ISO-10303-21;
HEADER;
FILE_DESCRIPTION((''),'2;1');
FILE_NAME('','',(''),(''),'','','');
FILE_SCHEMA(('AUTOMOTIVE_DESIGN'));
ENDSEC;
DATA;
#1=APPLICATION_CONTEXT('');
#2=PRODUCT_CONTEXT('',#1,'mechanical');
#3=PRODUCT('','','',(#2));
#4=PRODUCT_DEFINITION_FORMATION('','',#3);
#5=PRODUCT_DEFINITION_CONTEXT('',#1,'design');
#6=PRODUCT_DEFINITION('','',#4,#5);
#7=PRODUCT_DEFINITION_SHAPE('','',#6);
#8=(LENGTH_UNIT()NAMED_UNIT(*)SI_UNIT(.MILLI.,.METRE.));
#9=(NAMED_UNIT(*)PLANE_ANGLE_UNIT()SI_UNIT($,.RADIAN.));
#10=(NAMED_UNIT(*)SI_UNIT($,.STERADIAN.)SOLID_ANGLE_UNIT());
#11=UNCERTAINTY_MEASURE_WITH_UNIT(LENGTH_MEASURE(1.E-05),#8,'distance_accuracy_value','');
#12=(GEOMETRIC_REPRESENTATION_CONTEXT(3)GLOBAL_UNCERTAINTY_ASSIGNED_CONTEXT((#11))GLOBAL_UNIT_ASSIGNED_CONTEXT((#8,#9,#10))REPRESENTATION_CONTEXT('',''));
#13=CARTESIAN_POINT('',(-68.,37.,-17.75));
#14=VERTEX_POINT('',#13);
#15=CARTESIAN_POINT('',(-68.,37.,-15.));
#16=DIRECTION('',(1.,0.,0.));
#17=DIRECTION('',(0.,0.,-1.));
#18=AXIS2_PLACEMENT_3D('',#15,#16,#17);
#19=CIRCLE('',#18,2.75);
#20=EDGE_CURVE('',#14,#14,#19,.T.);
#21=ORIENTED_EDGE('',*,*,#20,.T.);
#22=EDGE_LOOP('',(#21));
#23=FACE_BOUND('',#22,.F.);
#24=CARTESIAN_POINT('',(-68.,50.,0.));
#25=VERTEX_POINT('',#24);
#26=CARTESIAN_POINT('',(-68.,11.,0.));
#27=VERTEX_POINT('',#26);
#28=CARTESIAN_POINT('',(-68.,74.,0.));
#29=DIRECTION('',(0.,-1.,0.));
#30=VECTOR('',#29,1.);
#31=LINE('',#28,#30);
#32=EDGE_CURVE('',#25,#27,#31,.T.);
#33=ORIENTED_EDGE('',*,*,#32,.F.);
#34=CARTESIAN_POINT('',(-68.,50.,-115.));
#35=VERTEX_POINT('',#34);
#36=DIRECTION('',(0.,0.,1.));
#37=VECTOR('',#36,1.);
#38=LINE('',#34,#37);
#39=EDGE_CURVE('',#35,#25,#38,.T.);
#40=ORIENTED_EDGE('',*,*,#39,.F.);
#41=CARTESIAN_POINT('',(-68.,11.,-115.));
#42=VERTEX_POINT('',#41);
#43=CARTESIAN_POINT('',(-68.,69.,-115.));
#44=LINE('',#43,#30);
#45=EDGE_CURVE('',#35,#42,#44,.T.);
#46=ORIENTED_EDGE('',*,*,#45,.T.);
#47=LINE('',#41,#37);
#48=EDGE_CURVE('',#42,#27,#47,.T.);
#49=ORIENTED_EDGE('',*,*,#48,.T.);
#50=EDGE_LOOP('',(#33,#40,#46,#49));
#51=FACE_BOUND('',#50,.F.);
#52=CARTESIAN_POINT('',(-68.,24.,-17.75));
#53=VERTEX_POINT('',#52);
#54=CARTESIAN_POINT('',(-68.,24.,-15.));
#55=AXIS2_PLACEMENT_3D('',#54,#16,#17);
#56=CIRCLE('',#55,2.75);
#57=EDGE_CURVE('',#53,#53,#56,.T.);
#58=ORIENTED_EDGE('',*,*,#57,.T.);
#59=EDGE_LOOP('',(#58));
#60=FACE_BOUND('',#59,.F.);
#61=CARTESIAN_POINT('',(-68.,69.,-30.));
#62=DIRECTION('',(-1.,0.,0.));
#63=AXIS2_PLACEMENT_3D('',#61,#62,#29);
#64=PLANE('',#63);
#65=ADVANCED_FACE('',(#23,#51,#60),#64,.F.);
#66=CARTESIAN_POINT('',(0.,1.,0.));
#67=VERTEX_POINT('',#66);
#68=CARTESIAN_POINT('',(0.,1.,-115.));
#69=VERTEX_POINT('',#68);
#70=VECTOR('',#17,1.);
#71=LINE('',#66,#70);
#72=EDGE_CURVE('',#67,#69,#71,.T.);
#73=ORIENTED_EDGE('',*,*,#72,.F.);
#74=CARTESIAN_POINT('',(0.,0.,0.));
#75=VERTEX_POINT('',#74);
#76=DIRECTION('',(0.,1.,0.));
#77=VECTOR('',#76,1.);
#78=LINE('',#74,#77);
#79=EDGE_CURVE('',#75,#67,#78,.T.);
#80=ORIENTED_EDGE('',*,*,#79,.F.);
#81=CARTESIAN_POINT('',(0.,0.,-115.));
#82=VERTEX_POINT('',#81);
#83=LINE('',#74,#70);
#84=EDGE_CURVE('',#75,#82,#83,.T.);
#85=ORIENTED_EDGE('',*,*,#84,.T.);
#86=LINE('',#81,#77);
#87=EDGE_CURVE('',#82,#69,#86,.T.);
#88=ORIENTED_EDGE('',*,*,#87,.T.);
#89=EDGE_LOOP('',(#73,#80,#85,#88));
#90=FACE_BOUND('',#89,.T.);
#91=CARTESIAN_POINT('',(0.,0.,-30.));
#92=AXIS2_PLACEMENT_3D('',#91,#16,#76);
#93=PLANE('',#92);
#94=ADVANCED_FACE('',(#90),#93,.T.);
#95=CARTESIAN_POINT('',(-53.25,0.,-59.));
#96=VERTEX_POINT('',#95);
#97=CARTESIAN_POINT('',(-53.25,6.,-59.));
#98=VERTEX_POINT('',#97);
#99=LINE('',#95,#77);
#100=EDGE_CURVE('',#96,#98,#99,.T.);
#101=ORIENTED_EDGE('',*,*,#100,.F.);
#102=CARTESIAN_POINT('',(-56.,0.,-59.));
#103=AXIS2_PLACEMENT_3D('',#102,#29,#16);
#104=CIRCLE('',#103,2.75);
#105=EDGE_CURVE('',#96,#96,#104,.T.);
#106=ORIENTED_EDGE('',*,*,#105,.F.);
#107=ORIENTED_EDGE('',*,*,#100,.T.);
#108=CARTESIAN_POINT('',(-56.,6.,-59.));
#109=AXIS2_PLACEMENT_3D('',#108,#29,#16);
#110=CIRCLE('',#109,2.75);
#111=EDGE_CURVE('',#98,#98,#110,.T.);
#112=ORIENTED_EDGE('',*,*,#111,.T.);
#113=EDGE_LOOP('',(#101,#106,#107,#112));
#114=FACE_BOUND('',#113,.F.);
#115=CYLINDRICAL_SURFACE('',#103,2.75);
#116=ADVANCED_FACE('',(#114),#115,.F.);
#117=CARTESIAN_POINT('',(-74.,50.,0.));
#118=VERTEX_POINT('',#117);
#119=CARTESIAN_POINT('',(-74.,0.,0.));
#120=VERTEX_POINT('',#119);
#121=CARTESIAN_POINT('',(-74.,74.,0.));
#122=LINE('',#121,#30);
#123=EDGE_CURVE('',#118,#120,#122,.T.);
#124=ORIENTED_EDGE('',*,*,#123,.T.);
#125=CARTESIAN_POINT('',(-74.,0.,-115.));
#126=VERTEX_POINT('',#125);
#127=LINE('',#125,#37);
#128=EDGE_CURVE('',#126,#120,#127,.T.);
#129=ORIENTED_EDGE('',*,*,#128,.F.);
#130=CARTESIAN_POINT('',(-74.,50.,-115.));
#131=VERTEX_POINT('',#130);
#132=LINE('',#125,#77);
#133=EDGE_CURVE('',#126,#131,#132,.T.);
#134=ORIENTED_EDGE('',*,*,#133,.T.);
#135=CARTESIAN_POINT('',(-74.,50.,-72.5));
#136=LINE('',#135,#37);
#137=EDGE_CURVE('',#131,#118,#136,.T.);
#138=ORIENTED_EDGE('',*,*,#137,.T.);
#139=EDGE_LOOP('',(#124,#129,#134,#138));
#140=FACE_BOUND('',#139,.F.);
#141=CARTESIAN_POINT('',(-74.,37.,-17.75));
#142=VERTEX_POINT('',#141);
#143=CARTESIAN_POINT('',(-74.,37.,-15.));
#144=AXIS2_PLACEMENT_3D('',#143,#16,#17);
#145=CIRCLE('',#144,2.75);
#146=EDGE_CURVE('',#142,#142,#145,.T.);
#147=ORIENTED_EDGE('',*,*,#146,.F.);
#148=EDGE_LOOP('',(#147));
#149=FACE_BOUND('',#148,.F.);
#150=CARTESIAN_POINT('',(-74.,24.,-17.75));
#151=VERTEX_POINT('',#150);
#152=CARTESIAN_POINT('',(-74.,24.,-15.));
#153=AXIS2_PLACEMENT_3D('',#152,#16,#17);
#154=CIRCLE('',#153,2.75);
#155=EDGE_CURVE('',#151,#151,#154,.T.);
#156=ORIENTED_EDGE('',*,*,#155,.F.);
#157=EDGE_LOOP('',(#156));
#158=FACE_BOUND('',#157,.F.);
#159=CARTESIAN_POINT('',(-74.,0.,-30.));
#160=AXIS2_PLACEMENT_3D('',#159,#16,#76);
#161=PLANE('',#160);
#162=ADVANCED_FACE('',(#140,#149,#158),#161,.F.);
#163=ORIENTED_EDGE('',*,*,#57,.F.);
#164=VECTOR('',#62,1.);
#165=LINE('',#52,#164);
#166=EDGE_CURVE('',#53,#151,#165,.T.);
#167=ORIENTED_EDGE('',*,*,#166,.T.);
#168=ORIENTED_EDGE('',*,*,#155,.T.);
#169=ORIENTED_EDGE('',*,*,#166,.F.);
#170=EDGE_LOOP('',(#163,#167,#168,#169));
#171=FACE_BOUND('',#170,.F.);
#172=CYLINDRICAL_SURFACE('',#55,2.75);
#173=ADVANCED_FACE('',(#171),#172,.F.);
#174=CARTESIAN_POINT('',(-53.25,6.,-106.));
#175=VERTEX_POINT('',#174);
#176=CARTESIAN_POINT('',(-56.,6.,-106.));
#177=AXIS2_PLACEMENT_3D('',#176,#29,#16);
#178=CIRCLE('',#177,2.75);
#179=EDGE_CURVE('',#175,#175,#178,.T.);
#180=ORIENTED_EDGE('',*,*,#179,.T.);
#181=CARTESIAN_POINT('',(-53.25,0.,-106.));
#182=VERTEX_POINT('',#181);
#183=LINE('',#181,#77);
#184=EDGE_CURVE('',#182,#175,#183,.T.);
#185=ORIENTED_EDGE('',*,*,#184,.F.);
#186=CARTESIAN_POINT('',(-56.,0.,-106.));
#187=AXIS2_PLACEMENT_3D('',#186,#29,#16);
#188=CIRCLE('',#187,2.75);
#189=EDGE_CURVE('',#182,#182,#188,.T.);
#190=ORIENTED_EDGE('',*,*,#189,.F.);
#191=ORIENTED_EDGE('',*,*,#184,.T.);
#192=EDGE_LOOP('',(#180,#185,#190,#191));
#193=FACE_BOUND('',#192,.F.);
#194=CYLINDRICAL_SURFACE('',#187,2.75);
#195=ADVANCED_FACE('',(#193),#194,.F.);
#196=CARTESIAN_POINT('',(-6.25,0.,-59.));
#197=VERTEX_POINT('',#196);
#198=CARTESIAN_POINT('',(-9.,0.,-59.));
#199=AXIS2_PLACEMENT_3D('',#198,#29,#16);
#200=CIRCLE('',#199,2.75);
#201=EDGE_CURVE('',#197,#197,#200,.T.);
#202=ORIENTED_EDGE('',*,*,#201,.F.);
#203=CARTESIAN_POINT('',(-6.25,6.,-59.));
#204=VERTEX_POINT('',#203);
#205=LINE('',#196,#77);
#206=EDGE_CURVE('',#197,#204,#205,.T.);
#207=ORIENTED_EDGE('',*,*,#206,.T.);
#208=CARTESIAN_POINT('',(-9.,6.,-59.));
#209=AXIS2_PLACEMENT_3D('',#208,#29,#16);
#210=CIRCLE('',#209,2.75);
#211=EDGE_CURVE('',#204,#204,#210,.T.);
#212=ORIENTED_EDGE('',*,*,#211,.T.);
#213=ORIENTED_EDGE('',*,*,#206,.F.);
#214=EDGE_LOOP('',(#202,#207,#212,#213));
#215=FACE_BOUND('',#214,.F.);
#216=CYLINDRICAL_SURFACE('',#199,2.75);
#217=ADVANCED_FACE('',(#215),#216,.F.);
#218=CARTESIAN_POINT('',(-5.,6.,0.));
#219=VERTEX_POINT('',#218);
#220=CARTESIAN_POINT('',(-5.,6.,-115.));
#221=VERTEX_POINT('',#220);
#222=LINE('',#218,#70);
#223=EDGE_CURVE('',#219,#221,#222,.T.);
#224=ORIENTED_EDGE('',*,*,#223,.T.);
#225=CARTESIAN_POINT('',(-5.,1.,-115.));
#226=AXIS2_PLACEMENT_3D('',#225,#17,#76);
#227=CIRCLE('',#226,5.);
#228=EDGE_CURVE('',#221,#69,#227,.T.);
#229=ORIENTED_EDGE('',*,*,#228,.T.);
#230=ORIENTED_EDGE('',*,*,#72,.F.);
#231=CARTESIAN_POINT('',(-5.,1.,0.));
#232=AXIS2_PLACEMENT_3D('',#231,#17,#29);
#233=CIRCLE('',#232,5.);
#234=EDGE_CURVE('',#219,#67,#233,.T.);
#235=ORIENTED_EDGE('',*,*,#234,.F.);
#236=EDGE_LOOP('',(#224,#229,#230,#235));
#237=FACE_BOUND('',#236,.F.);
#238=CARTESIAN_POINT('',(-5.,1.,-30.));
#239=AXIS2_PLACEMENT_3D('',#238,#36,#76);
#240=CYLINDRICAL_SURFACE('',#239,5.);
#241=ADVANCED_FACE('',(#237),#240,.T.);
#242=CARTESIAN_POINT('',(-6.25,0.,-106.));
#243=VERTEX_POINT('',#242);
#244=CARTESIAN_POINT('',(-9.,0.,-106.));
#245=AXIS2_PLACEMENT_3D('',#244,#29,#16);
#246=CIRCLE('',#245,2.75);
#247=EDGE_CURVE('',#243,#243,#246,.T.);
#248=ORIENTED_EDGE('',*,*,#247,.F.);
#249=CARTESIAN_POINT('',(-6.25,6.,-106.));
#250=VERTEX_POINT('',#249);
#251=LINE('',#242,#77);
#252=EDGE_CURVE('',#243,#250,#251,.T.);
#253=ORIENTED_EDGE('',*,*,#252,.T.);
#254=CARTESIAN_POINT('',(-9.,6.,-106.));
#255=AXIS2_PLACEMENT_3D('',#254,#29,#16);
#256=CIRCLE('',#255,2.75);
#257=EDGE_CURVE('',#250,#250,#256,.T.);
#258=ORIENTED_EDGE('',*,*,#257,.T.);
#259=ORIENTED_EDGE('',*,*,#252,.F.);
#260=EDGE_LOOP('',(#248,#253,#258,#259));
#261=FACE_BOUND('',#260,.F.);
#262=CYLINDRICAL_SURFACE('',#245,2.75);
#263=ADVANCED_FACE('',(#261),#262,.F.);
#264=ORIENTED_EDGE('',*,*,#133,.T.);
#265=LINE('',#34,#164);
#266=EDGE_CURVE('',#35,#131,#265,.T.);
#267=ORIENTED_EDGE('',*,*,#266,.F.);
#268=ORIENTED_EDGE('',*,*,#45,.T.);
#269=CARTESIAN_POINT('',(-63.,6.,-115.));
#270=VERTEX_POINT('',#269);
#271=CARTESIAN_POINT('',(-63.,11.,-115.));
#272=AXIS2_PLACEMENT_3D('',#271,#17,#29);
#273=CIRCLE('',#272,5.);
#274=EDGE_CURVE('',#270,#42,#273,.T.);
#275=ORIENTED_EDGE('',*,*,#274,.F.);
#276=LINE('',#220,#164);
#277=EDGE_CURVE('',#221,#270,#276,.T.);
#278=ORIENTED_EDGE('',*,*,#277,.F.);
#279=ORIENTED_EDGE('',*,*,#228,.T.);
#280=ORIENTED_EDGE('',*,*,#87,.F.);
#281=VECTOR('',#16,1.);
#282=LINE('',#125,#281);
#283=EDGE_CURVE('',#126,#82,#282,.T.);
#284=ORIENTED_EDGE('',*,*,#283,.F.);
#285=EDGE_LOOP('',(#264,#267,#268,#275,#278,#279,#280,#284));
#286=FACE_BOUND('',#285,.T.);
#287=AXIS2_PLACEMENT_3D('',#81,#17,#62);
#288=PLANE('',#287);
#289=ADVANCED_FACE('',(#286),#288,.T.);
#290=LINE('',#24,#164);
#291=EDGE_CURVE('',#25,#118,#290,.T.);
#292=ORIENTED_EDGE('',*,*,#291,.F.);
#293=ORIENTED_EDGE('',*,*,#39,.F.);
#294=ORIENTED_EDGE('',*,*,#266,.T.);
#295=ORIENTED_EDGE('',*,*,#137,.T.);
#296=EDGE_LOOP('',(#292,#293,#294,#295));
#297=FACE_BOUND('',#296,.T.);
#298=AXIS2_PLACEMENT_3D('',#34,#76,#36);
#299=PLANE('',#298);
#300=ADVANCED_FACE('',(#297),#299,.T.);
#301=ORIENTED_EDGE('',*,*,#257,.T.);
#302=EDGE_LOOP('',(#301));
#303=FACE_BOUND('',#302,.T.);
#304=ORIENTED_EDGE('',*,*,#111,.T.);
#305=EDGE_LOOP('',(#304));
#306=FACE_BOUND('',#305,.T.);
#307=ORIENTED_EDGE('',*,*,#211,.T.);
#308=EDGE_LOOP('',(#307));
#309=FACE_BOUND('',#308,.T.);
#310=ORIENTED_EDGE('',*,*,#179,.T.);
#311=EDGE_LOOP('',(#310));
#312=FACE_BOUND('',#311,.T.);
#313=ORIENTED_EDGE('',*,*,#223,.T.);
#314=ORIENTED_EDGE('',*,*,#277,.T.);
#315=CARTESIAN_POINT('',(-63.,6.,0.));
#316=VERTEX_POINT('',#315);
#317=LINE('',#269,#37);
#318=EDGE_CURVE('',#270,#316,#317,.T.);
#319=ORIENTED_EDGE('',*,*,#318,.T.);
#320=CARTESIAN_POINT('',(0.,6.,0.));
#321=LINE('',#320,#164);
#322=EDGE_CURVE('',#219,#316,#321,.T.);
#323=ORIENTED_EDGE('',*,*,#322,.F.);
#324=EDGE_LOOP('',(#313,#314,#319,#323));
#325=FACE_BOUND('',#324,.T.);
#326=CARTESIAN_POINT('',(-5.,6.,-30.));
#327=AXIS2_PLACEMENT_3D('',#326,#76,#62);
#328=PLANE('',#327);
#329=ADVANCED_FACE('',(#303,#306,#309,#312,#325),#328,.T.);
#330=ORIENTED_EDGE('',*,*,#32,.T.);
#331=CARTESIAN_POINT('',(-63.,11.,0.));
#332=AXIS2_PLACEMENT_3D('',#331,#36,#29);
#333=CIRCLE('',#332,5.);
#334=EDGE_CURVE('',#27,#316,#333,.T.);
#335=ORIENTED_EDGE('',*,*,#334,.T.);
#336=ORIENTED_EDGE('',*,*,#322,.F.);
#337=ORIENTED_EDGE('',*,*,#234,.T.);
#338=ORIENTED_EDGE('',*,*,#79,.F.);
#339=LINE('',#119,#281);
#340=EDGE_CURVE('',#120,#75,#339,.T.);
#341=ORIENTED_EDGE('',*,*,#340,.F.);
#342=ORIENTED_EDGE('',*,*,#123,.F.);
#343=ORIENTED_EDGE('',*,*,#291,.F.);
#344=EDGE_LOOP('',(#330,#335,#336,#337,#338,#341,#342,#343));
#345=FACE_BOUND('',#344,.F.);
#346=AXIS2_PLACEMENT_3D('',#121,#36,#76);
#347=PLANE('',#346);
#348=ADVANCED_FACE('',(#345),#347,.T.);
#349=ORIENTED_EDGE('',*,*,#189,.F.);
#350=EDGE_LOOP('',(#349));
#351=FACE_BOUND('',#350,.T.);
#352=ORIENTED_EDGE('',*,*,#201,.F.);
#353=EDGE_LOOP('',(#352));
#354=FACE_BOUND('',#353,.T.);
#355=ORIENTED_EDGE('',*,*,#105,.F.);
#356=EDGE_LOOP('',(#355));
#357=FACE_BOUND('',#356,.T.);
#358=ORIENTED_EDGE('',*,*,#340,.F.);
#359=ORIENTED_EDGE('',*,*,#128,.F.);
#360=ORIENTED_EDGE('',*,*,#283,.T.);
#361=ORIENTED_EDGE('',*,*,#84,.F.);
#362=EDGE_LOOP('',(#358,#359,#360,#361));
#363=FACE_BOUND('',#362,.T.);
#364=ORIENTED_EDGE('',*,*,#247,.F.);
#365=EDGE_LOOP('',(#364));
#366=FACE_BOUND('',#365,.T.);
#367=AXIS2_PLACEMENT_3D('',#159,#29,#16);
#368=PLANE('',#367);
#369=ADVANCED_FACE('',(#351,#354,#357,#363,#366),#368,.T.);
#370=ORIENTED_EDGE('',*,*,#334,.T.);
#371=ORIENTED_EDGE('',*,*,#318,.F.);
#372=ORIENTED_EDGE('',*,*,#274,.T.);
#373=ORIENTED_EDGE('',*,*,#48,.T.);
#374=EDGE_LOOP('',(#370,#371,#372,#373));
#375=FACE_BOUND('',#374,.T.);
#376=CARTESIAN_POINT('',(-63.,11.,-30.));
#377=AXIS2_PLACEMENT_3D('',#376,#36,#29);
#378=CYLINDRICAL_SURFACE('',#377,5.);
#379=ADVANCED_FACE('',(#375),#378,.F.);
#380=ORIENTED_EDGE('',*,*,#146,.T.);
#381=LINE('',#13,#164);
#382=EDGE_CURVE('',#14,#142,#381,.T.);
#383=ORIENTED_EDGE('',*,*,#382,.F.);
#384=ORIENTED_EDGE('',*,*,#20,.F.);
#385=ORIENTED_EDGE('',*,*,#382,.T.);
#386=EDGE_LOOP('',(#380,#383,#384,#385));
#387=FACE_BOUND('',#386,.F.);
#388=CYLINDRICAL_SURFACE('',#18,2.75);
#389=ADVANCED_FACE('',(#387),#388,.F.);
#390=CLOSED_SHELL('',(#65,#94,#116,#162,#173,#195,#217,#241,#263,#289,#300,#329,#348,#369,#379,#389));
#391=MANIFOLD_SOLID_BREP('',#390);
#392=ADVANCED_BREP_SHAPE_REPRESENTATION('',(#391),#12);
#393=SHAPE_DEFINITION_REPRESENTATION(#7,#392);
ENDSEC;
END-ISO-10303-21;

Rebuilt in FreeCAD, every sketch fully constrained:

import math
import FreeCAD as App
import Part
import Sketcher

V = App.Vector


def edges_at(feature, points):
    """Names of the edges that pass closest to the given points."""
    edges = feature.Shape.Edges
    near = lambda p: min(range(len(edges)), key=lambda i: edges[i].distToShape(Part.Vertex(*p))[0])
    return sorted({f"Edge{near(p) + 1}" for p in points})

doc = App.newDocument("Part")
body = doc.addObject("PartDesign::Body", "Body")

# Sketch on XZ plane
sketch1 = body.newObject("Sketcher::SketchObject", "Sketch")
sketch1.AttachmentSupport = (doc.getObject("XZ_Plane"), [""])
sketch1.MapMode = "FlatFace"
sketch1.addGeometry([
    Part.LineSegment(V(-74, 0, 0), V(0, 0, 0)),
    Part.LineSegment(V(0, 0, 0), V(0, -30, 0)),
    Part.LineSegment(V(0, -30, 0), V(-74, -30, 0)),
    Part.LineSegment(V(-74, -30, 0), V(-74, 0, 0)),
], False)
sketch1.addConstraint([
    Sketcher.Constraint("Coincident", 0, 2, 1, 1),
    Sketcher.Constraint("Coincident", 1, 2, 2, 1),
    Sketcher.Constraint("Coincident", 2, 2, 3, 1),
    Sketcher.Constraint("Coincident", 3, 2, 0, 1),
    Sketcher.Constraint("Horizontal", 0),
    Sketcher.Constraint("Vertical", 1),
    Sketcher.Constraint("Horizontal", 2),
    Sketcher.Constraint("Vertical", 3),
    Sketcher.Constraint("Coincident", 0, 2, -1, 1),
    Sketcher.Constraint("DistanceX", 0, 1, 0, 2, 74.0),
    Sketcher.Constraint("DistanceY", 1, 2, 1, 1, 30.0),
])
pad1 = body.newObject("PartDesign::Pad", "Pad")
pad1.Profile = sketch1
pad1.Length = 6
pad1.Reversed = True
doc.recompute()

fillet = body.newObject("PartDesign::Fillet", "Fillet")
fillet.Base = (pad1, edges_at(pad1, [(-74, 0, -15)]))
fillet.Radius = 5
doc.recompute()

fillet2 = body.newObject("PartDesign::Fillet", "Fillet001")
fillet2.Base = (fillet, edges_at(fillet, [(0, 6, -15)]))
fillet2.Radius = 5
doc.recompute()

datumplane = body.newObject("PartDesign::Plane", "DatumPlane")
datumplane.Placement = App.Placement(V(-37, 37, 0), App.Rotation(V(0.707106781, 0.707106781, 0), V(0, 0, -1), V(-0.707106781, 0.707106781, 0), "ZXY"))
mirrored = body.newObject("PartDesign::Mirrored", "Mirrored")
mirrored.Originals = [pad1, fillet2]
mirrored.MirrorPlane = (datumplane, [""])
body.Tip = mirrored
doc.recompute()

fillet3 = body.newObject("PartDesign::Fillet", "Fillet002")
fillet3.Base = (mirrored, edges_at(mirrored, [(-68, 6, -15)]))
fillet3.Radius = 5

# Sketch on XY plane
sketch2 = body.newObject("Sketcher::SketchObject", "Sketch001")
sketch2.AttachmentSupport = (doc.getObject("XY_Plane"), [""])
sketch2.MapMode = "FlatFace"
sketch2.AttachmentOffset = App.Placement(V(0, 0, -30), App.Rotation())
sketch2.addGeometry([
    Part.LineSegment(V(-63, 6, 0), V(-5, 6, 0)),  # 0
    Part.ArcOfCircle(Part.Circle(V(-5, 1, 0), V(0, 0, 1), 5), math.radians(0), math.radians(90)),  # 1
    Part.LineSegment(V(0, 1, 0), V(0, 0, 0)),  # 2
    Part.LineSegment(V(0, 0, 0), V(-74, 0, 0)),  # 3
    Part.LineSegment(V(-74, 0, 0), V(-74, 74, 0)),  # 4
    Part.LineSegment(V(-74, 74, 0), V(-73, 74, 0)),  # 5
    Part.ArcOfCircle(Part.Circle(V(-73, 69, 0), V(0, 0, 1), 5), math.radians(0), math.radians(90)),  # 6
    Part.LineSegment(V(-68, 69, 0), V(-68, 11, 0)),  # 7
    Part.ArcOfCircle(Part.Circle(V(-63, 11, 0), V(0, 0, 1), 5), math.radians(180), math.radians(270)),  # 8
], False)
sketch2.addConstraint([
    Sketcher.Constraint("Tangent", 0, 2, 1, 2),
    Sketcher.Constraint("Tangent", 1, 1, 2, 1),
    Sketcher.Constraint("Coincident", 2, 2, 3, 1),
    Sketcher.Constraint("Coincident", 3, 2, 4, 1),
    Sketcher.Constraint("Coincident", 4, 2, 5, 1),
    Sketcher.Constraint("Tangent", 5, 2, 6, 2),
    Sketcher.Constraint("Tangent", 6, 1, 7, 1),
    Sketcher.Constraint("Tangent", 7, 2, 8, 1),
    Sketcher.Constraint("Tangent", 8, 2, 0, 1),
    Sketcher.Constraint("Horizontal", 0),
    Sketcher.Constraint("Vertical", 2),
    Sketcher.Constraint("Horizontal", 3),
    Sketcher.Constraint("Vertical", 4),
    Sketcher.Constraint("Horizontal", 5),
    Sketcher.Constraint("Vertical", 7),
    Sketcher.Constraint("Coincident", 2, 2, -1, 1),
    Sketcher.Constraint("Equal", 1, 6),
    Sketcher.Constraint("Equal", 6, 8),
    Sketcher.Constraint("Equal", 5, 2),
    Sketcher.Constraint("Equal", 3, 4),
    Sketcher.Constraint("Radius", 1, 5.0),
    Sketcher.Constraint("DistanceX", 0, 1, 0, 2, 58.0),
    Sketcher.Constraint("DistanceX", 3, 2, 3, 1, 74.0),
])
pad2 = body.newObject("PartDesign::Pad", "Pad001")
pad2.Profile = sketch2
pad2.Length = 85
pad2.Reversed = True

# Sketch on YZ plane
sketch3 = body.newObject("Sketcher::SketchObject", "Sketch002")
sketch3.AttachmentSupport = (doc.getObject("YZ_Plane"), [""])
sketch3.MapMode = "FlatFace"
sketch3.AttachmentOffset = App.Placement(V(0, 0, -68), App.Rotation())
sketch3.addGeometry([
    Part.LineSegment(V(50, -115, 0), V(74, -115, 0)),
    Part.LineSegment(V(74, -115, 0), V(74, 0, 0)),
    Part.LineSegment(V(74, 0, 0), V(50, 0, 0)),
    Part.LineSegment(V(50, 0, 0), V(50, -115, 0)),
], False)
sketch3.addConstraint([
    Sketcher.Constraint("Coincident", 0, 2, 1, 1),
    Sketcher.Constraint("Coincident", 1, 2, 2, 1),
    Sketcher.Constraint("Coincident", 2, 2, 3, 1),
    Sketcher.Constraint("Coincident", 3, 2, 0, 1),
    Sketcher.Constraint("Horizontal", 0),
    Sketcher.Constraint("Vertical", 1),
    Sketcher.Constraint("Horizontal", 2),
    Sketcher.Constraint("Vertical", 3),
    Sketcher.Constraint("PointOnObject", 1, 2, -1),
    Sketcher.Constraint("DistanceX", 0, 1, 0, 2, 24.0),
    Sketcher.Constraint("DistanceX", -1, 1, 0, 2, 74.0),
    Sketcher.Constraint("DistanceY", 1, 1, 1, 2, 115.0),
])
pocket1 = body.newObject("PartDesign::Pocket", "Pocket")
pocket1.Profile = sketch3
pocket1.Length = 10

# Sketch on YZ plane
sketch4 = body.newObject("Sketcher::SketchObject", "Sketch003")
sketch4.AttachmentSupport = (doc.getObject("YZ_Plane"), [""])
sketch4.MapMode = "FlatFace"
sketch4.AttachmentOffset = App.Placement(V(0, 0, -68), App.Rotation())
sketch4.addGeometry([
    Part.Circle(V(24, -15, 0), V(0, 0, 1), 2.8),
    Part.Circle(V(37, -15, 0), V(0, 0, 1), 2.8),
], False)
sketch4.addConstraint([
    Sketcher.Constraint("Equal", 0, 1),
    Sketcher.Constraint("Horizontal", 0, 3, 1, 3),
    Sketcher.Constraint("Diameter", 0, 5.5),
    Sketcher.Constraint("DistanceY", 0, 3, -1, 1, 15.0),
    Sketcher.Constraint("DistanceX", 0, 3, 1, 3, 13.0),
    Sketcher.Constraint("DistanceX", -1, 1, 0, 3, 24.0),
])
pocket2 = body.newObject("PartDesign::Pocket", "Pocket001")
pocket2.Profile = sketch4
pocket2.Length = 10

# Sketch on XZ plane
sketch5 = body.newObject("Sketcher::SketchObject", "Sketch004")
sketch5.AttachmentSupport = (doc.getObject("XZ_Plane"), [""])
sketch5.MapMode = "FlatFace"
sketch5.addGeometry([
    Part.Circle(V(-9, -106, 0), V(0, 0, 1), 2.8),
    Part.Circle(V(-56, -106, 0), V(0, 0, 1), 2.8),
    Part.Circle(V(-9, -59, 0), V(0, 0, 1), 2.8),
    Part.Circle(V(-56, -59, 0), V(0, 0, 1), 2.8),
], False)
sketch5.addConstraint([
    Sketcher.Constraint("Equal", 0, 1),
    Sketcher.Constraint("Equal", 1, 2),
    Sketcher.Constraint("Equal", 2, 3),
    Sketcher.Constraint("Horizontal", 0, 3, 1, 3),
    Sketcher.Constraint("Horizontal", 2, 3, 3, 3),
    Sketcher.Constraint("Vertical", 0, 3, 2, 3),
    Sketcher.Constraint("Vertical", 1, 3, 3, 3),
    Sketcher.Constraint("Diameter", 0, 5.5),
    Sketcher.Constraint("DistanceX", 0, 3, -1, 1, 9.0),
    Sketcher.Constraint("DistanceX", 1, 3, 0, 3, 47.0),
    Sketcher.Constraint("DistanceY", 0, 3, 2, 3, 47.0),
    Sketcher.Constraint("DistanceY", 0, 3, -1, 1, 106.0),
])
pocket3 = body.newObject("PartDesign::Pocket", "Pocket002")
pocket3.Profile = sketch5
pocket3.Length = 10

doc.recompute()
